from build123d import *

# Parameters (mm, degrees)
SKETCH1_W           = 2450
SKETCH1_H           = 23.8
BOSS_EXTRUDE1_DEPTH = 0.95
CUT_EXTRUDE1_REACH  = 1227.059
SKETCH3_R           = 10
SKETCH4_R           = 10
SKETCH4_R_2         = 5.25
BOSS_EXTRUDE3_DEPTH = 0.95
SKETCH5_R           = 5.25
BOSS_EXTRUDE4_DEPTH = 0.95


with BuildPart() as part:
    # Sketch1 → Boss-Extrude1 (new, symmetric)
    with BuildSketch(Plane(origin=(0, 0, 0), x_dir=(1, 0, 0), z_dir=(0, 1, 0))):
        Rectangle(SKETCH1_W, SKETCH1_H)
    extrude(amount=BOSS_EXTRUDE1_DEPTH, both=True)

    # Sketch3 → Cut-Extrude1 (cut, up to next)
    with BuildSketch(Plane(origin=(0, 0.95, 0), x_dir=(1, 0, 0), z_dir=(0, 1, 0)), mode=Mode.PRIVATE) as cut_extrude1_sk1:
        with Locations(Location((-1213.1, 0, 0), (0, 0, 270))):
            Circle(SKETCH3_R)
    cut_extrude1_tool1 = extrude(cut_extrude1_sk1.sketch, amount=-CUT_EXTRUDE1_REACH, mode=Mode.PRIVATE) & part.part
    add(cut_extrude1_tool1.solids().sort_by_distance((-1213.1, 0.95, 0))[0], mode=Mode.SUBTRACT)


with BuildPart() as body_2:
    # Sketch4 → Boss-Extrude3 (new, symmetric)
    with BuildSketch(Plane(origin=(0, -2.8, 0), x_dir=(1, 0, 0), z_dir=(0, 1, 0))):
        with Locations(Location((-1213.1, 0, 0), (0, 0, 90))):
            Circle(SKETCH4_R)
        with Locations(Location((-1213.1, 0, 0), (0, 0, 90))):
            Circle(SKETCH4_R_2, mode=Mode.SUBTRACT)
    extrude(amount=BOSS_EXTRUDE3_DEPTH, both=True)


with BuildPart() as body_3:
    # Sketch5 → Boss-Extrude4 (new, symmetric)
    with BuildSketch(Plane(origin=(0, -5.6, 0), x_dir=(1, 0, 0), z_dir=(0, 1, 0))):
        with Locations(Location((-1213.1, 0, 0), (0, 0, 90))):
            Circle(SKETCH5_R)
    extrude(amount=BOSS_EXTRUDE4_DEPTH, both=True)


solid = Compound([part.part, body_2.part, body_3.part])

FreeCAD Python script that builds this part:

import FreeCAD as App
import Part
import Sketcher
from FreeCAD import Vector
Q = App.Units.Quantity

doc = App.newDocument("Part")
body = doc.addObject("PartDesign::Body", "Body")

sketch1 = doc.addObject("Sketcher::SketchObject", "Sketch")
body.addObject(sketch1)
sketch1.AttachmentSupport = (doc.XZ_Plane, [""])
sketch1.MapMode = "FlatFace"
sketch1.addGeometry(Part.LineSegment(Vector(-1225, -12, 0), Vector(-1225, 12, 0)), False)
sketch1.addGeometry(Part.LineSegment(Vector(-1225, 12, 0), Vector(1225, 12, 0)), False)
sketch1.addGeometry(Part.LineSegment(Vector(1225, 12, 0), Vector(1225, -12, 0)), False)
sketch1.addGeometry(Part.LineSegment(Vector(1225, -12, 0), Vector(-1225, -12, 0)), False)
sketch1.addConstraint(Sketcher.Constraint("Coincident", 0, 2, 1, 1))
sketch1.addConstraint(Sketcher.Constraint("Coincident", 1, 2, 2, 1))
sketch1.addConstraint(Sketcher.Constraint("Coincident", 2, 2, 3, 1))
sketch1.addConstraint(Sketcher.Constraint("Coincident", 3, 2, 0, 1))
sketch1.addConstraint(Sketcher.Constraint("Vertical", 0))
sketch1.addConstraint(Sketcher.Constraint("Horizontal", 1))
sketch1.addConstraint(Sketcher.Constraint("Vertical", 2))
sketch1.addConstraint(Sketcher.Constraint("Horizontal", 3))
sketch1.addConstraint(Sketcher.Constraint("Symmetric", 0, 2, 2, 2, -1, 1))
sketch1.addConstraint(Sketcher.Constraint("DistanceX", 1, 1, 1, 2, Q("2450 mm")))
sketch1.addConstraint(Sketcher.Constraint("DistanceY", 0, 1, 0, 2, Q("23.8 mm")))
pad1 = doc.addObject("PartDesign::Pad", "Pad")
body.addObject(pad1)
pad1.Profile = sketch1
pad1.Length = 1.9
pad1.Midplane = True

sketch2 = doc.addObject("Sketcher::SketchObject", "Sketch001")
body.addObject(sketch2)
sketch2.AttachmentSupport = (doc.XZ_Plane, [""])
sketch2.MapMode = "FlatFace"
sketch2.AttachmentOffset = App.Placement(Vector(0, 0, -0.95), App.Rotation())
sketch2.addGeometry(Part.Circle(Vector(-1213, 0, 0), Vector(0, 0, 1), 10), False)
sketch2.addConstraint(Sketcher.Constraint("PointOnObject", 0, 3, -1))
sketch2.addConstraint(Sketcher.Constraint("Diameter", 0, Q("20 mm")))
sketch2.addConstraint(Sketcher.Constraint("DistanceX", 0, 3, -1, 1, Q("1213.1 mm")))
pocket1 = doc.addObject("PartDesign::Pocket", "Pocket")
body.addObject(pocket1)
pocket1.Profile = sketch2
pocket1.Type = "UpToFirst"
pocket1.Reversed = True
body2 = doc.addObject("PartDesign::Body", "Body001")

sketch3 = doc.addObject("Sketcher::SketchObject", "Sketch002")
body2.addObject(sketch3)
sketch3.AttachmentSupport = (doc.getObject("XZ_Plane001"), [""])
sketch3.MapMode = "FlatFace"
sketch3.AttachmentOffset = App.Placement(Vector(0, 0, 2.8), App.Rotation())
sketch3.addGeometry(Part.Circle(Vector(-1213, 0, 0), Vector(0, 0, 1), 10), False)
sketch3.addGeometry(Part.Circle(Vector(-1213, 0, 0), Vector(0, 0, 1), 5), False)
sketch3.addConstraint(Sketcher.Constraint("Coincident", 1, 3, 0, 3))
sketch3.addConstraint(Sketcher.Constraint("PointOnObject", 0, 3, -1))
sketch3.addConstraint(Sketcher.Constraint("Diameter", 0, Q("20 mm")))
sketch3.addConstraint(Sketcher.Constraint("Diameter", 1, Q("10.5 mm")))
sketch3.addConstraint(Sketcher.Constraint("DistanceX", 0, 3, -1, 1, Q("1213.1 mm")))
pad2 = doc.addObject("PartDesign::Pad", "Pad001")
body2.addObject(pad2)
pad2.Profile = sketch3
pad2.Length = 1.9
pad2.Midplane = True
body3 = doc.addObject("PartDesign::Body", "Body002")

sketch4 = doc.addObject("Sketcher::SketchObject", "Sketch003")
body3.addObject(sketch4)
sketch4.AttachmentSupport = (doc.getObject("XZ_Plane002"), [""])
sketch4.MapMode = "FlatFace"
sketch4.AttachmentOffset = App.Placement(Vector(0, 0, 5.6), App.Rotation())
sketch4.addGeometry(Part.Circle(Vector(-1213, 0, 0), Vector(0, 0, 1), 5), False)
sketch4.addConstraint(Sketcher.Constraint("PointOnObject", 0, 3, -1))
sketch4.addConstraint(Sketcher.Constraint("Diameter", 0, Q("10.5 mm")))
sketch4.addConstraint(Sketcher.Constraint("DistanceX", 0, 3, -1, 1, Q("1213.1 mm")))
pad3 = doc.addObject("PartDesign::Pad", "Pad002")
body3.addObject(pad3)
pad3.Profile = sketch4
pad3.Length = 1.9
pad3.Midplane = True

doc.recompute()
